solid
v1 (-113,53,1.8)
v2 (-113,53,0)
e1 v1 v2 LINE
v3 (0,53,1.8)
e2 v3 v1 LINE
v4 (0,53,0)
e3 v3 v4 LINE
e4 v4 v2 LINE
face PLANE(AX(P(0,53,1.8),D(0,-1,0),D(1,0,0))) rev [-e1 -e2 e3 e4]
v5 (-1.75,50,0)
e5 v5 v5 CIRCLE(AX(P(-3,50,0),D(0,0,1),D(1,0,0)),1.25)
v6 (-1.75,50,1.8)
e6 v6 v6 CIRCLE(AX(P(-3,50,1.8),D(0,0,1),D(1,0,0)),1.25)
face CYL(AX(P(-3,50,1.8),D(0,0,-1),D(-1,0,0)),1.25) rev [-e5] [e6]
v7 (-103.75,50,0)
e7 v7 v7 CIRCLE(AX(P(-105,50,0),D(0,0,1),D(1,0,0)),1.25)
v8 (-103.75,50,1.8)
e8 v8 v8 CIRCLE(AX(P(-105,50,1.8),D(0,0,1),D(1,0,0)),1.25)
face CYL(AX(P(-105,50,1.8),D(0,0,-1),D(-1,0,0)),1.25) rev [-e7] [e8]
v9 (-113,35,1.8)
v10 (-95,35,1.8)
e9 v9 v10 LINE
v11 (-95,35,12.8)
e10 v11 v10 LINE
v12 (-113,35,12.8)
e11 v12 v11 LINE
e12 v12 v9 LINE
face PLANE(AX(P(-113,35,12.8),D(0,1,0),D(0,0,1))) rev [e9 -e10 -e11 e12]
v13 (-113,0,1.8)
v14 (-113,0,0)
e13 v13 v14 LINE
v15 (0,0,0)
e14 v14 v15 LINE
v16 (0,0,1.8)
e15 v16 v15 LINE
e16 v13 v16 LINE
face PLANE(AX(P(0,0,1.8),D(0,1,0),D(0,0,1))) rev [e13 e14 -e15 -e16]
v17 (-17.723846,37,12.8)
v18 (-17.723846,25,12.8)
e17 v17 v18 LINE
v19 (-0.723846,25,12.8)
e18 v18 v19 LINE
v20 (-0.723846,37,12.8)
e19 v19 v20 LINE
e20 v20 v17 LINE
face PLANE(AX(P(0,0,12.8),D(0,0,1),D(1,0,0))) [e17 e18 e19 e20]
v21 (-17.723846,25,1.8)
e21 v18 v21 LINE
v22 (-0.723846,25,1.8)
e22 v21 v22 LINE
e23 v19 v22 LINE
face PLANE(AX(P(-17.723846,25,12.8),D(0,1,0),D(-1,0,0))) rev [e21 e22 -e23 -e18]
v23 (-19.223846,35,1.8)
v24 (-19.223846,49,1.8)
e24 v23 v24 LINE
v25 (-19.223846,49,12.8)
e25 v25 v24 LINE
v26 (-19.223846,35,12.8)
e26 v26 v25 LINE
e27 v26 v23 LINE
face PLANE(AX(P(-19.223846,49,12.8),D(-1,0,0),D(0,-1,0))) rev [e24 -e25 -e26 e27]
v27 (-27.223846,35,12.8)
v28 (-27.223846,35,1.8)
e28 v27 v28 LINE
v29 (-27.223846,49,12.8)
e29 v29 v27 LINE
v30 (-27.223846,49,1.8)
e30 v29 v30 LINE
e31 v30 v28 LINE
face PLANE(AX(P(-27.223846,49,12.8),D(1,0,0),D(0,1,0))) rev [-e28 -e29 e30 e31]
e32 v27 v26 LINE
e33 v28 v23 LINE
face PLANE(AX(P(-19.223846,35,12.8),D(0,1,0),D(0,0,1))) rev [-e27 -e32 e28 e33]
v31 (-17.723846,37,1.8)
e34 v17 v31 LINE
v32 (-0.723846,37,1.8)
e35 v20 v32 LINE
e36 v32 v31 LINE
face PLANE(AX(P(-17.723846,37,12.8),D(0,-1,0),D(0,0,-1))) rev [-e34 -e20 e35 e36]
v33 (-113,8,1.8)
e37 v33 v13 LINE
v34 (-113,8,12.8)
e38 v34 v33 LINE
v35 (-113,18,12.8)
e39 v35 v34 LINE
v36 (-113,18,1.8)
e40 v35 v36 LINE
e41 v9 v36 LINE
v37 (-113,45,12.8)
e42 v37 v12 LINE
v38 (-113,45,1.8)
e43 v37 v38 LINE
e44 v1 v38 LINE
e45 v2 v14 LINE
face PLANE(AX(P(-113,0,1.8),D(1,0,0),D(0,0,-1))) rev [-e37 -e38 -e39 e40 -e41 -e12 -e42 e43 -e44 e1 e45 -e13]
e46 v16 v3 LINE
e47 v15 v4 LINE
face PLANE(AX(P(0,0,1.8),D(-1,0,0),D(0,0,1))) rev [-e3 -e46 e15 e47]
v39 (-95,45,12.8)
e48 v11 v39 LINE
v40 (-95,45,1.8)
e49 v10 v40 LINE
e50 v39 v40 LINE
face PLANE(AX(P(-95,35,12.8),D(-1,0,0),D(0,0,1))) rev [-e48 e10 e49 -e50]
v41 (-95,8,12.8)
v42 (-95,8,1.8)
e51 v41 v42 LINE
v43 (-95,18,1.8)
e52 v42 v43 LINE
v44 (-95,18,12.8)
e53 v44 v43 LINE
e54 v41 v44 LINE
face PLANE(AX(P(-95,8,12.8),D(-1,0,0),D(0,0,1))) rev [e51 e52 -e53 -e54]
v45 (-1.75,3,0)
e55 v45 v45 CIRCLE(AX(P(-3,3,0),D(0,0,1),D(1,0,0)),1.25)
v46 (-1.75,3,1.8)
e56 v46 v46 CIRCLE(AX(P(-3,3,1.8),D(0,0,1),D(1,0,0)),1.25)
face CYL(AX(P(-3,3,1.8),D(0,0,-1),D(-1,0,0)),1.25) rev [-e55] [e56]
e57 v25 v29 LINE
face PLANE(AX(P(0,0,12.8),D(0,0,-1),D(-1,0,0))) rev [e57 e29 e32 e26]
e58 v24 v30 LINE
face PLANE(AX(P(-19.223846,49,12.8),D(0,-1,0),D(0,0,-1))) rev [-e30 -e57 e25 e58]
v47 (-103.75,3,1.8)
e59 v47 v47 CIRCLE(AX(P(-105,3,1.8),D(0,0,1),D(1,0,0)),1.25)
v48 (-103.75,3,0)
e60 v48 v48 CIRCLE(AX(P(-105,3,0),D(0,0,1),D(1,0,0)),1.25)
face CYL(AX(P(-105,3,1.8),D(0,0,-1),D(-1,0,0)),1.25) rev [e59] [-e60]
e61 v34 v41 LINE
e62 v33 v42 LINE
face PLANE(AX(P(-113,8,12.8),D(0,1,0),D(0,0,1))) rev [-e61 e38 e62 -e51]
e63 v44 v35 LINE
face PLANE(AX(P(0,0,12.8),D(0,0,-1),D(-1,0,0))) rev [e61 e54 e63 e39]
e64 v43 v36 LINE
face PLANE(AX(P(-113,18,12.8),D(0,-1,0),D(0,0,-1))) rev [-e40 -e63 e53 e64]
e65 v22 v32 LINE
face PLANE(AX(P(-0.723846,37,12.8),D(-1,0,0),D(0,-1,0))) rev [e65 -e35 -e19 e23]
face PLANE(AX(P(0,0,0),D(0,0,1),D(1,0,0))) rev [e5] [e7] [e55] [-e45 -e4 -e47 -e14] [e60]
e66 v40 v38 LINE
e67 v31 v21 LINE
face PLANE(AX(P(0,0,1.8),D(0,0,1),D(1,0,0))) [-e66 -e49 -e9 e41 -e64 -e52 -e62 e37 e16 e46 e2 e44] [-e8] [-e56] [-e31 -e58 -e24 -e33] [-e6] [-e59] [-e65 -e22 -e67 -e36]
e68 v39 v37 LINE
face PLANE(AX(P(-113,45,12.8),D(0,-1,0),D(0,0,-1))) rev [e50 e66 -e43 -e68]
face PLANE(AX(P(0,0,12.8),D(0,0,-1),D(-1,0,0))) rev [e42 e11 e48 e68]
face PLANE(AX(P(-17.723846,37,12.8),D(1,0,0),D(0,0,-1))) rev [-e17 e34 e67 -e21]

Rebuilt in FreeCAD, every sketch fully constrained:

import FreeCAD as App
import Part
import Sketcher
Q = App.Units.Quantity


def add_polygon(sketch, points):
    """Adds a closed chain of lines whose ends are joined by coincident constraints."""
    first, n = sketch.GeometryCount, len(points)
    for a, b in zip(points, points[1:] + points[:1]):
        sketch.addGeometry(Part.LineSegment(App.Vector(*a, 0), App.Vector(*b, 0)), False)
    for i in range(n):
        sketch.addConstraint(Sketcher.Constraint("Coincident", first + i, 2, first + (i + 1) % n, 1))

doc = App.newDocument("Part")
body = doc.addObject("PartDesign::Body", "Body")

sketch1 = body.newObject("Sketcher::SketchObject", "Sketch")
sketch1.AttachmentSupport = (doc.getObject("XY_Plane"), [""])
sketch1.MapMode = "FlatFace"
add_polygon(sketch1, [(-113, 53), (-113, 0), (0, 0), (0, 53)])
sketch1.addGeometry(Part.Circle(App.Vector(-105, 3, 0), App.Vector(0, 0, 1), 1.2), False)
sketch1.addGeometry(Part.Circle(App.Vector(-3, 3, 0), App.Vector(0, 0, 1), 1.2), False)
sketch1.addGeometry(Part.Circle(App.Vector(-105, 50, 0), App.Vector(0, 0, 1), 1.2), False)
sketch1.addGeometry(Part.Circle(App.Vector(-3, 50, 0), App.Vector(0, 0, 1), 1.2), False)
sketch1.addConstraint([
    Sketcher.Constraint("Vertical", 0),
    Sketcher.Constraint("Horizontal", 1),
    Sketcher.Constraint("Vertical", 2),
    Sketcher.Constraint("Horizontal", 3),
    Sketcher.Constraint("Coincident", 1, 2, -1, 1),
    Sketcher.Constraint("Equal", 4, 5),
    Sketcher.Constraint("Equal", 5, 6),
    Sketcher.Constraint("Equal", 6, 7),
    Sketcher.Constraint("Horizontal", 4, 3, 5, 3),
    Sketcher.Constraint("Horizontal", 6, 3, 7, 3),
    Sketcher.Constraint("Vertical", 4, 3, 6, 3),
    Sketcher.Constraint("Vertical", 5, 3, 7, 3),
    Sketcher.Constraint("Diameter", 4, Q("2.5 mm")),
    Sketcher.Constraint("DistanceX", 1, 1, 1, 2, Q("113 mm")),
    Sketcher.Constraint("DistanceY", 0, 2, 0, 1, Q("53 mm")),
    Sketcher.Constraint("DistanceX", 4, 3, -1, 1, Q("105 mm")),
    Sketcher.Constraint("DistanceY", -1, 1, 4, 3, Q("3 mm")),
    Sketcher.Constraint("DistanceX", 5, 3, -1, 1, Q("3 mm")),
    Sketcher.Constraint("DistanceY", -1, 1, 6, 3, Q("50 mm")),
])
pad1 = body.newObject("PartDesign::Pad", "Pad")
pad1.Profile = sketch1
pad1.Length = 1.8

sketch2 = body.newObject("Sketcher::SketchObject", "Sketch001")
sketch2.AttachmentSupport = (doc.getObject("XY_Plane"), [""])
sketch2.MapMode = "FlatFace"
sketch2.AttachmentOffset = App.Placement(App.Vector(0, 0, 1.8), App.Rotation())
add_polygon(sketch2, [(-18, 37), (-18, 25), (-1, 25), (-1, 37)])
add_polygon(sketch2, [(-27, 49), (-27, 35), (-19, 35), (-19, 49)])
add_polygon(sketch2, [(-113, 45), (-113, 35), (-95, 35), (-95, 45)])
add_polygon(sketch2, [(-113, 18), (-113, 8), (-95, 8), (-95, 18)])
sketch2.addConstraint([
    Sketcher.Constraint("Vertical", 0),
    Sketcher.Constraint("Horizontal", 1),
    Sketcher.Constraint("Vertical", 2),
    Sketcher.Constraint("Horizontal", 3),
    Sketcher.Constraint("Vertical", 4),
    Sketcher.Constraint("Horizontal", 5),
    Sketcher.Constraint("Vertical", 6),
    Sketcher.Constraint("Horizontal", 7),
    Sketcher.Constraint("Vertical", 8),
    Sketcher.Constraint("Horizontal", 9),
    Sketcher.Constraint("Vertical", 10),
    Sketcher.Constraint("Horizontal", 11),
    Sketcher.Constraint("Vertical", 12),
    Sketcher.Constraint("Horizontal", 13),
    Sketcher.Constraint("Vertical", 14),
    Sketcher.Constraint("Horizontal", 15),
    Sketcher.Constraint("Horizontal", 5, 2, 8, 2),
    Sketcher.Constraint("Vertical", 11, 2, 12, 2),
    Sketcher.Constraint("Vertical", 10, 2, 13, 2),
    Sketcher.Constraint("Equal", 10, 12),
    Sketcher.Constraint("DistanceX", 1, 1, 1, 2, Q("17 mm")),
    Sketcher.Constraint("DistanceX", 5, 1, 5, 2, Q("8 mm")),
    Sketcher.Constraint("DistanceX", 9, 1, 9, 2, Q("18 mm")),
    Sketcher.Constraint("DistanceY", 0, 2, 0, 1, Q("12 mm")),
    Sketcher.Constraint("DistanceY", 4, 2, 4, 1, Q("14 mm")),
    Sketcher.Constraint("DistanceY", 8, 2, 8, 1, Q("10 mm")),
    Sketcher.Constraint("DistanceY", -1, 1, 0, 2, Q("25 mm")),
    Sketcher.Constraint("DistanceY", -1, 1, 4, 2, Q("35 mm")),
    Sketcher.Constraint("DistanceX", 8, 2, -1, 1, Q("113 mm")),
    Sketcher.Constraint("DistanceY", -1, 1, 12, 2, Q("8 mm")),
    Sketcher.Constraint("DistanceX", 4, 2, 3, 2, Q("9.5 mm")),
    Sketcher.Constraint("DistanceX", 0, 2, -1, 1, Q("17.723846 mm")),
])
pad2 = body.newObject("PartDesign::Pad", "Pad001")
pad2.Profile = sketch2
pad2.Length = 11

doc.recompute()
